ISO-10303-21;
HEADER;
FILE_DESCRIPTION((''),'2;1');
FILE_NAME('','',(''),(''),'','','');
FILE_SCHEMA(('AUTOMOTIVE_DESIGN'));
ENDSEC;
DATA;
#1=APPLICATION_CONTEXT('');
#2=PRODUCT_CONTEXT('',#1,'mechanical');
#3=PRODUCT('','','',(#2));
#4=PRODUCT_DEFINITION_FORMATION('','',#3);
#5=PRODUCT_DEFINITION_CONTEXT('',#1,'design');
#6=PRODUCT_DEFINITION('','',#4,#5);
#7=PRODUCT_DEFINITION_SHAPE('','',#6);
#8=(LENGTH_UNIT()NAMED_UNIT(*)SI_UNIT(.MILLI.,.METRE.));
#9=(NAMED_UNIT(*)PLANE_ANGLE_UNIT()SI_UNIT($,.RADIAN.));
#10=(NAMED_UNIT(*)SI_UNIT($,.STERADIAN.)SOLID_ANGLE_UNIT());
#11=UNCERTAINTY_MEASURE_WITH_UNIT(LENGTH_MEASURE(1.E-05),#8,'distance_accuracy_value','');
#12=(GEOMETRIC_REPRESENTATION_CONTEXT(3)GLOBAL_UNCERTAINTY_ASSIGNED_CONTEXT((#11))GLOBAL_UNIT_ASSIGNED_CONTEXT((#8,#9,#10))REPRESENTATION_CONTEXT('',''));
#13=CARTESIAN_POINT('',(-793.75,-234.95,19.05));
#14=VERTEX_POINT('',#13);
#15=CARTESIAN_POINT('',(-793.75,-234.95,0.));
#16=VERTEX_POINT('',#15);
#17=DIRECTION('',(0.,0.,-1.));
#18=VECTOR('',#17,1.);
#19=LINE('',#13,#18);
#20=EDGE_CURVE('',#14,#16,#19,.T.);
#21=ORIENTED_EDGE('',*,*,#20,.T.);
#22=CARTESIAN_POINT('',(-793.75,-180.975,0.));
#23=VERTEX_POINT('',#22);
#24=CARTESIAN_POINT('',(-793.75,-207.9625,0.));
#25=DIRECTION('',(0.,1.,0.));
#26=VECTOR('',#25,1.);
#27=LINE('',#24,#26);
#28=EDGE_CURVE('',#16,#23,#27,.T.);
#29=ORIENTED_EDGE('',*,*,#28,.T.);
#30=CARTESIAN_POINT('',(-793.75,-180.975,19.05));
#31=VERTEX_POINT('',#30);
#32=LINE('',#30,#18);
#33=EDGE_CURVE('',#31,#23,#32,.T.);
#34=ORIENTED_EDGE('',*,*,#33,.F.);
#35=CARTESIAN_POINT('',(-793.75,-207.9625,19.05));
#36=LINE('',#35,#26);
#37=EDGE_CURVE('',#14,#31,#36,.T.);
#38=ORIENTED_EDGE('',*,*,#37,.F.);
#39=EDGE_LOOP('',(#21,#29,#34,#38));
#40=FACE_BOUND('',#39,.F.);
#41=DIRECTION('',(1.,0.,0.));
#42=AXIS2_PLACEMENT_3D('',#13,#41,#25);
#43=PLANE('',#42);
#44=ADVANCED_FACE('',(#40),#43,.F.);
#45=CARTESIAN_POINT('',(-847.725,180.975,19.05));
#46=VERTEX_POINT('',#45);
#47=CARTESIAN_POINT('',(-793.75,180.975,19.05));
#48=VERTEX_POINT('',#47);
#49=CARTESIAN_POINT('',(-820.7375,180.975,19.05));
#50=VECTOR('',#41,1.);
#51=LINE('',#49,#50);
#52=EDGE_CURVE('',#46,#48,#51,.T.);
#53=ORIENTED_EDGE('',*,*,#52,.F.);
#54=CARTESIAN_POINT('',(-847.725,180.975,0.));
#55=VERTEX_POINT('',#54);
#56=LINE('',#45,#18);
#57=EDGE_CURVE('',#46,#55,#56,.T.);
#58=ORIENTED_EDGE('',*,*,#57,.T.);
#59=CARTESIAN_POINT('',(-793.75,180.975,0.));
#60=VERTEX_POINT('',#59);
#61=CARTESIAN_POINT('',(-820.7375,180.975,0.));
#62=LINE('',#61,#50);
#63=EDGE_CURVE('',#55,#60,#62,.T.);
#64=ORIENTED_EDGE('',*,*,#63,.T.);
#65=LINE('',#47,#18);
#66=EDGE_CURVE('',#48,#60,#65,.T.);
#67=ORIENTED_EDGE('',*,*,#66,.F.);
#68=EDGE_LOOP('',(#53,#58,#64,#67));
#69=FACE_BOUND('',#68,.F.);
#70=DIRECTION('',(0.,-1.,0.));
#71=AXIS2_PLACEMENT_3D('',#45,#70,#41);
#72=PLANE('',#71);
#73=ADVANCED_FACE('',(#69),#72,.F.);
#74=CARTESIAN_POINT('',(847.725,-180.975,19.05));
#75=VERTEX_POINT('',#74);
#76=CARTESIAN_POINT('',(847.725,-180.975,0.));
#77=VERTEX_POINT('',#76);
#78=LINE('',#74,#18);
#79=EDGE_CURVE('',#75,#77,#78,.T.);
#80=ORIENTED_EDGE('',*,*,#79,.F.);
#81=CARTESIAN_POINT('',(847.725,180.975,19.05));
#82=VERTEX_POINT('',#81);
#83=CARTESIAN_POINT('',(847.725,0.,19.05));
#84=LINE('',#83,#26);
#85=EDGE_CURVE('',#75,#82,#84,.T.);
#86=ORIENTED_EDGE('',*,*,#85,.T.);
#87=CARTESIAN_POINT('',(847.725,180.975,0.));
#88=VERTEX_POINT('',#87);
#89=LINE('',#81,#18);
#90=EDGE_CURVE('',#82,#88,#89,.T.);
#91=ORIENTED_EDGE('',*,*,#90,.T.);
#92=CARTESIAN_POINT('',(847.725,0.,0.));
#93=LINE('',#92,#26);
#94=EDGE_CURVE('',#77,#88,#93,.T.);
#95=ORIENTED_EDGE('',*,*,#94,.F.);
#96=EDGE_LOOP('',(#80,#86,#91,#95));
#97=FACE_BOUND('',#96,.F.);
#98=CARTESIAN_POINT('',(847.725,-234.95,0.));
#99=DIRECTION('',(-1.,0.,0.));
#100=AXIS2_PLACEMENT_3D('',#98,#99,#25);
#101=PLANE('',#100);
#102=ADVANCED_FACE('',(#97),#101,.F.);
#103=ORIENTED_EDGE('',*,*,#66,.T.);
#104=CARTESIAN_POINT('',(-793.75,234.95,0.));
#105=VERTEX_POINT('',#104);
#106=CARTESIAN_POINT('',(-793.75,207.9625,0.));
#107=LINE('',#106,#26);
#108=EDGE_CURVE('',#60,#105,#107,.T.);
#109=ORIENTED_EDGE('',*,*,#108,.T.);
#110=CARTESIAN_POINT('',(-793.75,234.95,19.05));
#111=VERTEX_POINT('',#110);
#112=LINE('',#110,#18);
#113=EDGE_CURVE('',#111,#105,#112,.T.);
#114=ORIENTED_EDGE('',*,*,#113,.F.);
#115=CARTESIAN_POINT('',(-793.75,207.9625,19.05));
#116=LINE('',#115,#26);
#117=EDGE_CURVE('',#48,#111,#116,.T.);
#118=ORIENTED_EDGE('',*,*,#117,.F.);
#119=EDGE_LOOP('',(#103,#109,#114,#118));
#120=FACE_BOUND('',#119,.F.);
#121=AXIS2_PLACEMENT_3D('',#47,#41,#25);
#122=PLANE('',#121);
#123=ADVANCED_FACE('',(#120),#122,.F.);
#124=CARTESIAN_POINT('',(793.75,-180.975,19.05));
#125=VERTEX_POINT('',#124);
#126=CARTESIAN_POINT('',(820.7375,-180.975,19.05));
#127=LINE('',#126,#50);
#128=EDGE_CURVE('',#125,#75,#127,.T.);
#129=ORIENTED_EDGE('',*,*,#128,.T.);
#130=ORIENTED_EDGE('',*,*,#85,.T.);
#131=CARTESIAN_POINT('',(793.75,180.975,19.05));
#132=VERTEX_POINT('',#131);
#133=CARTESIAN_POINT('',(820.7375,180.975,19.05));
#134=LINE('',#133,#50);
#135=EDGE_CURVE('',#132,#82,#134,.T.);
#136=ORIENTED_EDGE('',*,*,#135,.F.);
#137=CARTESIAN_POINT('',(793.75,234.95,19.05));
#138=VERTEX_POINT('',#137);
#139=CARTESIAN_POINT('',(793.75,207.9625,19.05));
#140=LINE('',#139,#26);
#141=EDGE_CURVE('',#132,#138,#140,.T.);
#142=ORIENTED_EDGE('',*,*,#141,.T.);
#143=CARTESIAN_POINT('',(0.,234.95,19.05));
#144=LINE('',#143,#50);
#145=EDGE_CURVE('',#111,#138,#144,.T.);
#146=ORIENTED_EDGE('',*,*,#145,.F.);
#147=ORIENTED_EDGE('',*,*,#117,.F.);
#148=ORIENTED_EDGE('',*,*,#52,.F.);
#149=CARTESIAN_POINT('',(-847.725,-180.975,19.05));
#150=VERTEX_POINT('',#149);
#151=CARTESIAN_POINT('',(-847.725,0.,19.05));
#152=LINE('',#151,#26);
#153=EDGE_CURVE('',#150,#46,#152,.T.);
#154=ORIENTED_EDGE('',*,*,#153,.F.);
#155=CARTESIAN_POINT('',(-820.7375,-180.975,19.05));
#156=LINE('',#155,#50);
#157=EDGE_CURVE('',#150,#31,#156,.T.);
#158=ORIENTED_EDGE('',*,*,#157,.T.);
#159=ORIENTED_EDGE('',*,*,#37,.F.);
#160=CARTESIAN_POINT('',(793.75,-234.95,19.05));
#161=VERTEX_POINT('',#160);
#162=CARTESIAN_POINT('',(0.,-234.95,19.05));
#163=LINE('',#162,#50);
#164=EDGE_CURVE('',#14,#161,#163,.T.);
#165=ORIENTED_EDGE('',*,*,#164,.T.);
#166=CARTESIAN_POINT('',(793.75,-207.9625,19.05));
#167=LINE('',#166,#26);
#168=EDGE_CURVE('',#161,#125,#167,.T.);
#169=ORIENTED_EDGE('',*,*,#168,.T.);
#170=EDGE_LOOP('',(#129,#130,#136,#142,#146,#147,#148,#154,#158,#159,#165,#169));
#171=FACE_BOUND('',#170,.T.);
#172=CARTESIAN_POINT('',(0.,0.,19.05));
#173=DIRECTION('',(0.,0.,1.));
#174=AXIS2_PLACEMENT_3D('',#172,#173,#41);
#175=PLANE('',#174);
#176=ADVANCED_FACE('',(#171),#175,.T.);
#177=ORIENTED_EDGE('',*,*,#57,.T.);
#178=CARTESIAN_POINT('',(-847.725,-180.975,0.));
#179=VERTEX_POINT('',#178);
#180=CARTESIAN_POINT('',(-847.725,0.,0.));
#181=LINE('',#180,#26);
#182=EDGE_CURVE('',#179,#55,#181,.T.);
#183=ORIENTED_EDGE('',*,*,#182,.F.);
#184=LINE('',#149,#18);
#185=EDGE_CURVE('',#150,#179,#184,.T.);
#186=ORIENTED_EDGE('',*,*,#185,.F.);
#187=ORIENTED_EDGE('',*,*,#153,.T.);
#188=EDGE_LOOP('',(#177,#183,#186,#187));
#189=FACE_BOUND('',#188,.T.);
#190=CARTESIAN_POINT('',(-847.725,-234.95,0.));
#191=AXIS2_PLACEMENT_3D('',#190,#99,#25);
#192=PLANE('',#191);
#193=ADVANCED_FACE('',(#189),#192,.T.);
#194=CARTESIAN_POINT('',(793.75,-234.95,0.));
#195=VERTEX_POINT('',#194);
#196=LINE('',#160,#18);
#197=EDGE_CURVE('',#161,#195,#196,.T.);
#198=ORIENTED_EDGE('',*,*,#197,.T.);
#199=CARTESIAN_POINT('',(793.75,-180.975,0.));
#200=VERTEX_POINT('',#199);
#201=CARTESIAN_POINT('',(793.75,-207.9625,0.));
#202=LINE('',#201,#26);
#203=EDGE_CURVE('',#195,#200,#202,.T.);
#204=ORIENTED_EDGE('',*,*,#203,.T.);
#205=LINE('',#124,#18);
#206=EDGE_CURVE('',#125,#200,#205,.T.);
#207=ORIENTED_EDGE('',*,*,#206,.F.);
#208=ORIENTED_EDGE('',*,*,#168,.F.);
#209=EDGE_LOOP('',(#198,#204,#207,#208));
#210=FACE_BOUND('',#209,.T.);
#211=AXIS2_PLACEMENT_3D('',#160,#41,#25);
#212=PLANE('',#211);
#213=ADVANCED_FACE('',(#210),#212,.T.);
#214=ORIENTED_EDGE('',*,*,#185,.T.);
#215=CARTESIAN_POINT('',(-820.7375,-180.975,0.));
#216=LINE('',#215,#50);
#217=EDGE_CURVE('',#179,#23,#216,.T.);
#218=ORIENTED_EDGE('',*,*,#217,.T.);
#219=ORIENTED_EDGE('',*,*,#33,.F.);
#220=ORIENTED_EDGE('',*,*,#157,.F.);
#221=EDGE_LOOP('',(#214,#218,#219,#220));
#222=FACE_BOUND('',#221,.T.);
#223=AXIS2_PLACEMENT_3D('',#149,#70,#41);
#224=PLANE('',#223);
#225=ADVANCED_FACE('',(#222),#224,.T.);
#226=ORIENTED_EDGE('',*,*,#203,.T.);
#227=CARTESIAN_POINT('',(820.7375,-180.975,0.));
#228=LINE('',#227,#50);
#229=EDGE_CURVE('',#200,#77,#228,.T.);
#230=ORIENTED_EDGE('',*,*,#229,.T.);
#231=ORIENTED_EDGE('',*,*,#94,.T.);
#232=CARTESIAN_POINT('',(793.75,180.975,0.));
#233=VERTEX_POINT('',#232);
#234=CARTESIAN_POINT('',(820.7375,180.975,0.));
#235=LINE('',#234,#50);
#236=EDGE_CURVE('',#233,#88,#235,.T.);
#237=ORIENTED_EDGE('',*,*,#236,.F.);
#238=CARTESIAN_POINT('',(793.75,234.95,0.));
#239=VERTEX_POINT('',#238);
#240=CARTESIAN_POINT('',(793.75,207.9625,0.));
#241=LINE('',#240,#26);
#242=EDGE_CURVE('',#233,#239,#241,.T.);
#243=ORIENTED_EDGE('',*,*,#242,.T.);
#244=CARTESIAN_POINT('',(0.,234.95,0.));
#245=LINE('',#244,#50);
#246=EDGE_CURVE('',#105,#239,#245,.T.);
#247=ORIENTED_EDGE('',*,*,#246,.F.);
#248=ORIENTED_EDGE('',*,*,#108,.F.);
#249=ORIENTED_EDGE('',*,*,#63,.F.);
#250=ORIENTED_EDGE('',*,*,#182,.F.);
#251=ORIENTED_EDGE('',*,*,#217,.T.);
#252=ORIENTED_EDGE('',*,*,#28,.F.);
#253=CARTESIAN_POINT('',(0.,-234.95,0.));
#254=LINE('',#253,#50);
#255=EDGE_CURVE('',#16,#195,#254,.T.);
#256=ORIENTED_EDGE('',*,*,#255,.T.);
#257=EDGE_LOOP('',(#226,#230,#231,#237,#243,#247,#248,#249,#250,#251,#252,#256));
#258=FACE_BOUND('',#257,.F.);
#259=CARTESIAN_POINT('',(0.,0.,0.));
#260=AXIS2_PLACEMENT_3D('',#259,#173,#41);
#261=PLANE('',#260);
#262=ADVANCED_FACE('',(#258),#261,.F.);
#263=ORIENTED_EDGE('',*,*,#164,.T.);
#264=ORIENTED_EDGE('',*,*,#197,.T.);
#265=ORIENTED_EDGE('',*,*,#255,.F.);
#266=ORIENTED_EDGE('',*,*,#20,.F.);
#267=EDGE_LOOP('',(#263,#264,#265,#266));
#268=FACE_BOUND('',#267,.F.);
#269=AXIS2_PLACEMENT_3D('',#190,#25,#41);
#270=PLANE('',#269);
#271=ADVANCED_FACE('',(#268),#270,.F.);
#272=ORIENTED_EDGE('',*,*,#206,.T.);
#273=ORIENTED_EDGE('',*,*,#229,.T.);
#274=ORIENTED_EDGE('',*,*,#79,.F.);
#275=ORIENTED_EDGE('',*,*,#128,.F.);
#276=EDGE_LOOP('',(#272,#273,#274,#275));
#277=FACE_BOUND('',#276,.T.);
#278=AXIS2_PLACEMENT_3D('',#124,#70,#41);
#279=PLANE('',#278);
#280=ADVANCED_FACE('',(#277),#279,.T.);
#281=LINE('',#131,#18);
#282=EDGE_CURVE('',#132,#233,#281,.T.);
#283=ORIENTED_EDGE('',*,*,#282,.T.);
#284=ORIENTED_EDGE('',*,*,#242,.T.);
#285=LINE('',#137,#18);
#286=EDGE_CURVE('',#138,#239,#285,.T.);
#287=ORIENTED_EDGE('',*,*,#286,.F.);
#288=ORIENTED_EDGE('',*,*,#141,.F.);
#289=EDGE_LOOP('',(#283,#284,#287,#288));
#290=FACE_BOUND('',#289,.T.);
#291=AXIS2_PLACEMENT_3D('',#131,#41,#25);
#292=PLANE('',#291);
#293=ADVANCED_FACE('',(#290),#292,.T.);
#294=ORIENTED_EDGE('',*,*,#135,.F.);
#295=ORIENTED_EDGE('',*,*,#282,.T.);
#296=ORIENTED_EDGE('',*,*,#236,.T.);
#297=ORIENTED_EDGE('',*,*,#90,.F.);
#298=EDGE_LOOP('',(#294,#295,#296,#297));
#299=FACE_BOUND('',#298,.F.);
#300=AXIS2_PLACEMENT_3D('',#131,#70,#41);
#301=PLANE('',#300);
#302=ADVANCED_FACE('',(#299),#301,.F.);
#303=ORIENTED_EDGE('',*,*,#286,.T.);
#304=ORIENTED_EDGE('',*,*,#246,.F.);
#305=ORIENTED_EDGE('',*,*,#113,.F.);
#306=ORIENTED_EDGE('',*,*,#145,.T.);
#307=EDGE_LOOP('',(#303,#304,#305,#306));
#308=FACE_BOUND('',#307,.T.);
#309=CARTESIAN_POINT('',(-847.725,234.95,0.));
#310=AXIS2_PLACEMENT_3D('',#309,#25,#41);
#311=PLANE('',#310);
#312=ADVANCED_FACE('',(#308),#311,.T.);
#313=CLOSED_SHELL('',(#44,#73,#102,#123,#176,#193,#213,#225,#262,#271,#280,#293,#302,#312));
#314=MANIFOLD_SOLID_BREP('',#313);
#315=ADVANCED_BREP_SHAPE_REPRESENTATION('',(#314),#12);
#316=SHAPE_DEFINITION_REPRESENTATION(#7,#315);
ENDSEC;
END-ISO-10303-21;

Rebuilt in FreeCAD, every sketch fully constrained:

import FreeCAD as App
import Part
import Sketcher
from FreeCAD import Vector
Q = App.Units.Quantity

doc = App.newDocument("Part")
body = doc.addObject("PartDesign::Body", "Body")

# Sketch on XY plane
sketch1 = doc.addObject("Sketcher::SketchObject", "Sketch")
body.addObject(sketch1)
sketch1.AttachmentSupport = (doc.XY_Plane, [""])
sketch1.MapMode = "FlatFace"
sketch1.addGeometry([
    Part.LineSegment(Vector(-848, 235, 0), Vector(-848, -235, 0)),
    Part.LineSegment(Vector(-848, -235, 0), Vector(848, -235, 0)),
    Part.LineSegment(Vector(848, -235, 0), Vector(848, 235, 0)),
    Part.LineSegment(Vector(848, 235, 0), Vector(-848, 235, 0)),
], False)
sketch1.addConstraint([
    Sketcher.Constraint("Coincident", 0, 2, 1, 1),
    Sketcher.Constraint("Coincident", 1, 2, 2, 1),
    Sketcher.Constraint("Coincident", 2, 2, 3, 1),
    Sketcher.Constraint("Coincident", 3, 2, 0, 1),
    Sketcher.Constraint("Vertical", 0),
    Sketcher.Constraint("Horizontal", 1),
    Sketcher.Constraint("Vertical", 2),
    Sketcher.Constraint("Horizontal", 3),
    Sketcher.Constraint("Symmetric", 0, 2, 2, 2, -1, 1),
    Sketcher.Constraint("DistanceY", 0, 2, 0, 1, Q("18.5 in")),
    Sketcher.Constraint("DistanceX", 1, 1, 1, 2, Q("66.75 in")),
])
pad1 = doc.addObject("PartDesign::Pad", "Pad")
body.addObject(pad1)
pad1.Profile = sketch1
pad1.Length = Q("0.75 in")

# Sketch on XY plane
sketch2 = doc.addObject("Sketcher::SketchObject", "Sketch001")
body.addObject(sketch2)
sketch2.AttachmentSupport = (doc.XY_Plane, [""])
sketch2.MapMode = "FlatFace"
sketch2.AttachmentOffset = App.Placement(Vector(0, 0, 0.75 * 25.4), App.Rotation())
sketch2.addGeometry([
    Part.LineSegment(Vector(-848, 235, 0), Vector(-848, 181, 0)),  # 0
    Part.LineSegment(Vector(-848, 181, 0), Vector(-794, 181, 0)),  # 1
    Part.LineSegment(Vector(-794, 181, 0), Vector(-794, 235, 0)),  # 2
    Part.LineSegment(Vector(-794, 235, 0), Vector(-848, 235, 0)),  # 3
    Part.LineSegment(Vector(-848, -181, 0), Vector(-848, -235, 0)),  # 4
    Part.LineSegment(Vector(-848, -235, 0), Vector(-794, -235, 0)),  # 5
    Part.LineSegment(Vector(-794, -235, 0), Vector(-794, -181, 0)),  # 6
    Part.LineSegment(Vector(-794, -181, 0), Vector(-848, -181, 0)),  # 7
    Part.LineSegment(Vector(794, 235, 0), Vector(794, 181, 0)),  # 8
    Part.LineSegment(Vector(794, 181, 0), Vector(848, 181, 0)),  # 9
    Part.LineSegment(Vector(848, 181, 0), Vector(848, 235, 0)),  # 10
    Part.LineSegment(Vector(848, 235, 0), Vector(794, 235, 0)),  # 11
    Part.LineSegment(Vector(794, -181, 0), Vector(794, -235, 0)),  # 12
    Part.LineSegment(Vector(794, -235, 0), Vector(848, -235, 0)),  # 13
    Part.LineSegment(Vector(848, -235, 0), Vector(848, -181, 0)),  # 14
    Part.LineSegment(Vector(848, -181, 0), Vector(794, -181, 0)),  # 15
], False)
sketch2.addConstraint([
    Sketcher.Constraint("Coincident", 0, 2, 1, 1),
    Sketcher.Constraint("Coincident", 1, 2, 2, 1),
    Sketcher.Constraint("Coincident", 2, 2, 3, 1),
    Sketcher.Constraint("Coincident", 3, 2, 0, 1),
    Sketcher.Constraint("Coincident", 4, 2, 5, 1),
    Sketcher.Constraint("Coincident", 5, 2, 6, 1),
    Sketcher.Constraint("Coincident", 6, 2, 7, 1),
    Sketcher.Constraint("Coincident", 7, 2, 4, 1),
    Sketcher.Constraint("Coincident", 8, 2, 9, 1),
    Sketcher.Constraint("Coincident", 9, 2, 10, 1),
    Sketcher.Constraint("Coincident", 10, 2, 11, 1),
    Sketcher.Constraint("Coincident", 11, 2, 8, 1),
    Sketcher.Constraint("Coincident", 12, 2, 13, 1),
    Sketcher.Constraint("Coincident", 13, 2, 14, 1),
    Sketcher.Constraint("Coincident", 14, 2, 15, 1),
    Sketcher.Constraint("Coincident", 15, 2, 12, 1),
    Sketcher.Constraint("Vertical", 0),
    Sketcher.Constraint("Horizontal", 1),
    Sketcher.Constraint("Vertical", 2),
    Sketcher.Constraint("Horizontal", 3),
    Sketcher.Constraint("Vertical", 4),
    Sketcher.Constraint("Horizontal", 5),
    Sketcher.Constraint("Vertical", 6),
    Sketcher.Constraint("Horizontal", 7),
    Sketcher.Constraint("Vertical", 8),
    Sketcher.Constraint("Horizontal", 9),
    Sketcher.Constraint("Vertical", 10),
    Sketcher.Constraint("Horizontal", 11),
    Sketcher.Constraint("Vertical", 12),
    Sketcher.Constraint("Horizontal", 13),
    Sketcher.Constraint("Vertical", 14),
    Sketcher.Constraint("Horizontal", 15),
    Sketcher.Constraint("Symmetric", 6, 2, 8, 2, -1, 1),
    Sketcher.Constraint("Symmetric", 4, 2, 10, 2, -1, 1),
    Sketcher.Constraint("Symmetric", 2, 2, 12, 2, -1, 1),
    Sketcher.Constraint("Symmetric", 0, 2, 14, 2, -1, 1),
    Sketcher.Constraint("Symmetric", 1, 2, 8, 2, -2),
    Sketcher.Constraint("Symmetric", 3, 2, 10, 2, -2),
    Sketcher.Constraint("Equal", 15, 0),
    Sketcher.Constraint("DistanceY", 4, 2, 3, 2, Q("18.5 in")),
    Sketcher.Constraint("DistanceX", 1, 2, 8, 2, Q("62.5 in")),
    Sketcher.Constraint("DistanceX", 1, 1, 1, 2, Q("2.125 in")),
])
pocket1 = doc.addObject("PartDesign::Pocket", "Pocket")
body.addObject(pocket1)
pocket1.Profile = sketch2
pocket1.Type = "ThroughAll"

doc.recompute()
